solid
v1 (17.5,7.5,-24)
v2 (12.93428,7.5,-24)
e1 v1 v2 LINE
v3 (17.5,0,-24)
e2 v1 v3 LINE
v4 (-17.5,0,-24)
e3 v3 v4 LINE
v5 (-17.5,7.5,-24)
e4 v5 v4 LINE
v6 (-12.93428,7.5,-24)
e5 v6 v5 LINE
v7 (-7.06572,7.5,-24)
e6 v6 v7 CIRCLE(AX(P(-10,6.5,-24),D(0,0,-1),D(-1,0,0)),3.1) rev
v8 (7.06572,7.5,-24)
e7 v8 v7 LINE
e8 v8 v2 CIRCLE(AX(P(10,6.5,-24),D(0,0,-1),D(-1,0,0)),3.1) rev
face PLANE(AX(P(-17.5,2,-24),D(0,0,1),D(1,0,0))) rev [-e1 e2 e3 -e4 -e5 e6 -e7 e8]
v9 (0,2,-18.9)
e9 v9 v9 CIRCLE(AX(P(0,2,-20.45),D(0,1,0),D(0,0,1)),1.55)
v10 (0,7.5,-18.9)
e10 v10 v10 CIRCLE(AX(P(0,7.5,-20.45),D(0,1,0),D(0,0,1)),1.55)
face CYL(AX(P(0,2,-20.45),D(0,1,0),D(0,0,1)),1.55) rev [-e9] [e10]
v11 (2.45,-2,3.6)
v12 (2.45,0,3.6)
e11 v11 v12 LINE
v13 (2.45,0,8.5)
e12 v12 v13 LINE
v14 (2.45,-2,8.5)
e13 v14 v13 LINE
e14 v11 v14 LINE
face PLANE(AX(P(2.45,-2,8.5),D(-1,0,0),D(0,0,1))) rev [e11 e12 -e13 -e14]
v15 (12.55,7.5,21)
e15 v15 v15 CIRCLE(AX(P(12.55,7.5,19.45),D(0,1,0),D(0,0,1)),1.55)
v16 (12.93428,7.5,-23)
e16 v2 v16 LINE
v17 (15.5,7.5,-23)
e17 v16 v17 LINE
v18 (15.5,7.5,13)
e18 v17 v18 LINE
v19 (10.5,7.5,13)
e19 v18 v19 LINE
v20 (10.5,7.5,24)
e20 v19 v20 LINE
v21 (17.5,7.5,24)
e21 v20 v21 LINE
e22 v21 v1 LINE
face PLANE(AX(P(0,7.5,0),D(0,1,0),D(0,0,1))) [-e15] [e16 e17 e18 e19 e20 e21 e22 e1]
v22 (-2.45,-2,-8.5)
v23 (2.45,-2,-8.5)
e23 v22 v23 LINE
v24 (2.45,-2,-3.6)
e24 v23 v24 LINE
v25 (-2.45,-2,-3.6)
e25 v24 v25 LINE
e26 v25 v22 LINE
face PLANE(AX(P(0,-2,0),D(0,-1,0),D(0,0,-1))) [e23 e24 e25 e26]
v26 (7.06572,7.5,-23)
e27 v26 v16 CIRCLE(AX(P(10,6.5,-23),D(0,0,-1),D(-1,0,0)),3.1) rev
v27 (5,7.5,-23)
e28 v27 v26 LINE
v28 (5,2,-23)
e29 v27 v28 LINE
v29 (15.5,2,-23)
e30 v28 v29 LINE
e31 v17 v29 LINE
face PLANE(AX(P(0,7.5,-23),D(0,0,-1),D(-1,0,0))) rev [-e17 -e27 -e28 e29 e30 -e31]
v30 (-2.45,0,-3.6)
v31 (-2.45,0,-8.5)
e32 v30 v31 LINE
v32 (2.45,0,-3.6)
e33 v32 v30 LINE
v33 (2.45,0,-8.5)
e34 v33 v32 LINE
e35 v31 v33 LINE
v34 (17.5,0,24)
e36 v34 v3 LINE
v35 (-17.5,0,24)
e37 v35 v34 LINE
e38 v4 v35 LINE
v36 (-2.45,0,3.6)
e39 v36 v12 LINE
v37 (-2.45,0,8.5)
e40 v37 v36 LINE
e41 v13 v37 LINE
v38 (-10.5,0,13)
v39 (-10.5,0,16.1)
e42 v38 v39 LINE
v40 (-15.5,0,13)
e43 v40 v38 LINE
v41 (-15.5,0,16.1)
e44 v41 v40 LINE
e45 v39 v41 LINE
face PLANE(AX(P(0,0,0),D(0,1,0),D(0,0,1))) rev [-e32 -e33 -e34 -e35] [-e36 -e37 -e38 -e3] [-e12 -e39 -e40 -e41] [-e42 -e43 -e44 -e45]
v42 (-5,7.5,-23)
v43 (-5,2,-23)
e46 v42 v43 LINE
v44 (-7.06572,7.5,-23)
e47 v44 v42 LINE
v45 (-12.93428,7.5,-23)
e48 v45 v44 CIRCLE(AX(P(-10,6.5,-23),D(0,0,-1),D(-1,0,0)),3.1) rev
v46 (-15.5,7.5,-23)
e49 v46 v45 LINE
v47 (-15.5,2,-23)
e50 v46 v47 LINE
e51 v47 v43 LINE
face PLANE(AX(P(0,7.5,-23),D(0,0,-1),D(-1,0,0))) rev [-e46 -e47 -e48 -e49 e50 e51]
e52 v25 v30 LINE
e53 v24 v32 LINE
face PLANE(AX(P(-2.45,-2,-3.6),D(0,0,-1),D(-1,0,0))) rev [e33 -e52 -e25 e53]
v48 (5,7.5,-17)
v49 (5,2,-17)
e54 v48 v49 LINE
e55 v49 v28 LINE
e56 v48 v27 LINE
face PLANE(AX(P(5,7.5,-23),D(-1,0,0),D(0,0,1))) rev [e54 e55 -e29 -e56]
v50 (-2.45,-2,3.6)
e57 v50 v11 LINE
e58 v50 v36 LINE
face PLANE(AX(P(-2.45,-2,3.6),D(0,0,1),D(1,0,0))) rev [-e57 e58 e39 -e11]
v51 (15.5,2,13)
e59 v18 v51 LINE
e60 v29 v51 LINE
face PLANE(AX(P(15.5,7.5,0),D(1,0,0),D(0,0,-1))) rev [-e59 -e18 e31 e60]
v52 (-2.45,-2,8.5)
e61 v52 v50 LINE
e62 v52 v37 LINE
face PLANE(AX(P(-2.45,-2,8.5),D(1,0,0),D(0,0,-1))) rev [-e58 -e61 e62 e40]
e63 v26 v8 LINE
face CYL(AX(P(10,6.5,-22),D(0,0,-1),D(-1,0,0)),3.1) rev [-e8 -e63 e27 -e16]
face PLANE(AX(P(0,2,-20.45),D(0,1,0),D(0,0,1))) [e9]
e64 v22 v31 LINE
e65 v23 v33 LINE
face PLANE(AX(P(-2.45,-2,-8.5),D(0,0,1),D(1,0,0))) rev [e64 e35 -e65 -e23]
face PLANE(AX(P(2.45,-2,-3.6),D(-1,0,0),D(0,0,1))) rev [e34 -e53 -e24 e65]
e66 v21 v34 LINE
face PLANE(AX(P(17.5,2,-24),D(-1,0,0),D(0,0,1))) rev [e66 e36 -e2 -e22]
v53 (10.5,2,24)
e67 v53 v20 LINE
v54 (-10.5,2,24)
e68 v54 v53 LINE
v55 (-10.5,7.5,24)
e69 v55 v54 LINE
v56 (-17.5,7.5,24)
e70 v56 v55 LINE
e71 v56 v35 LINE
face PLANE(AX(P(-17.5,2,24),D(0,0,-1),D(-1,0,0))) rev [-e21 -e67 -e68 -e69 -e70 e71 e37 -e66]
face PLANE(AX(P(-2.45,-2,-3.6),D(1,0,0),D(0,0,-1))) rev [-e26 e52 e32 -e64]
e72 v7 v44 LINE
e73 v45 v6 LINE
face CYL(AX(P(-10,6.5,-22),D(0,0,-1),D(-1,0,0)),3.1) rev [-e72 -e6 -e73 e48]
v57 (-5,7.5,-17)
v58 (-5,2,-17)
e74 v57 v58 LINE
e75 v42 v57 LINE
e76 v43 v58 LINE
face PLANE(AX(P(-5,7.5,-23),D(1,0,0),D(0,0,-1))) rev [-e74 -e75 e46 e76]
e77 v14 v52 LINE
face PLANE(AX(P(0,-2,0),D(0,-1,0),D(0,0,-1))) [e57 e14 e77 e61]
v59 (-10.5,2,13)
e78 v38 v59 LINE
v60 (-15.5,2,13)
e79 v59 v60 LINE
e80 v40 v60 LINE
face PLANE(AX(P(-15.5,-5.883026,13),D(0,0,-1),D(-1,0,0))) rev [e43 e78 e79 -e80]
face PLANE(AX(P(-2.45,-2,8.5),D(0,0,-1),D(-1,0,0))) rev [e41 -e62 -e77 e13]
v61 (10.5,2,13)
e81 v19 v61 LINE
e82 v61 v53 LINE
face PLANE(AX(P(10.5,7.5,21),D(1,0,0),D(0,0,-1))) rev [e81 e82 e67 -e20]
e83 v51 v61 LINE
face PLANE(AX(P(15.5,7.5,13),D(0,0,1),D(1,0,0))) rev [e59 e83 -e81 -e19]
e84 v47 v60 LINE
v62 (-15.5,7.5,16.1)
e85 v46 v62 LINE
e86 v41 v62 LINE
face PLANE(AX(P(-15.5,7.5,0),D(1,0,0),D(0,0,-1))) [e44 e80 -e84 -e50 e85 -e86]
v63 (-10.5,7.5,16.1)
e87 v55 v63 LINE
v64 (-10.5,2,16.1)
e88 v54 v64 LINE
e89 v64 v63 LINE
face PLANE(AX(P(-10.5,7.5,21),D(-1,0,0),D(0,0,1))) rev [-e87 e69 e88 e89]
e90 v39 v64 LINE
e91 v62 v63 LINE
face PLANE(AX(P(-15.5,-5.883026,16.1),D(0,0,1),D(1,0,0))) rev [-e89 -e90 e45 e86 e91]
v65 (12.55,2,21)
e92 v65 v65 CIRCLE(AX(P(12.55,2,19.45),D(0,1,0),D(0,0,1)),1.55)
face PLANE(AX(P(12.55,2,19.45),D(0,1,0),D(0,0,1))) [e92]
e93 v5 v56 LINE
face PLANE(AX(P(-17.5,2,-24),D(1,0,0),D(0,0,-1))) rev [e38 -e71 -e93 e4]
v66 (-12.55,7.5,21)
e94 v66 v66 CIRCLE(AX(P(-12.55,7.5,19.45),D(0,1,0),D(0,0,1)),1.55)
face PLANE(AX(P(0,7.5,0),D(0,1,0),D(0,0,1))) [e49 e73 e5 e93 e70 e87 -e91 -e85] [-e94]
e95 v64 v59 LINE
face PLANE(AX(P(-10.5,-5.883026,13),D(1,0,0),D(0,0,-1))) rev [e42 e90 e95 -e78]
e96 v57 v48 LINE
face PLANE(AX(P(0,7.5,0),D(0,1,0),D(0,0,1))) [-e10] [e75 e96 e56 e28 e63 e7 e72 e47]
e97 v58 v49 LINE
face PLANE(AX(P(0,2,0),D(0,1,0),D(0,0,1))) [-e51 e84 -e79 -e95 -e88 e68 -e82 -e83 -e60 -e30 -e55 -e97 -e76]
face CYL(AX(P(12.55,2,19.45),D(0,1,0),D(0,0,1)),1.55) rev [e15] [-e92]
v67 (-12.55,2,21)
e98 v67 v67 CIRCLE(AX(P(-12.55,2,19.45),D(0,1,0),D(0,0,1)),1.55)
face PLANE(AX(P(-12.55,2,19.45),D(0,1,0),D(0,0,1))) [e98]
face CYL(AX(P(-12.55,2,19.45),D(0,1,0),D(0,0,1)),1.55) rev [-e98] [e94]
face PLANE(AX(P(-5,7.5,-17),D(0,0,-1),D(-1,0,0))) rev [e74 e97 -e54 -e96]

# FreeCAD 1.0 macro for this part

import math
import FreeCAD as App
import Part
import Sketcher

V = App.Vector

doc = App.newDocument("Part")
body = doc.addObject("PartDesign::Body", "Body")

sketch1 = body.newObject("Sketcher::SketchObject", "Sketch")
sketch1.AttachmentSupport = (doc.getObject("XZ_Plane"), [""])
sketch1.MapMode = "FlatFace"
sketch1.addGeometry([
    Part.LineSegment(V(-17.5, -24, 0), V(-17.5, 24, 0)),
    Part.LineSegment(V(-17.5, 24, 0), V(17.5, 24, 0)),
    Part.LineSegment(V(17.5, 24, 0), V(17.5, -24, 0)),
    Part.LineSegment(V(17.5, -24, 0), V(-17.5, -24, 0)),
], False)
sketch1.addConstraint([
    Sketcher.Constraint("Coincident", 0, 2, 1, 1),
    Sketcher.Constraint("Coincident", 1, 2, 2, 1),
    Sketcher.Constraint("Coincident", 2, 2, 3, 1),
    Sketcher.Constraint("Coincident", 3, 2, 0, 1),
    Sketcher.Constraint("Vertical", 0),
    Sketcher.Constraint("Horizontal", 1),
    Sketcher.Constraint("Vertical", 2),
    Sketcher.Constraint("Horizontal", 3),
    Sketcher.Constraint("Symmetric", 0, 2, 2, 2, -1, 1),
    Sketcher.Constraint("DistanceX", 1, 1, 1, 2, 35.0),
    Sketcher.Constraint("DistanceY", 0, 1, 0, 2, 48.0),
])
pad1 = body.newObject("PartDesign::Pad", "Pad")
pad1.Profile = sketch1
pad1.Length = 2
pad1.Reversed = True

sketch2 = body.newObject("Sketcher::SketchObject", "Sketch001")
sketch2.AttachmentSupport = (doc.getObject("XZ_Plane"), [""])
sketch2.MapMode = "FlatFace"
sketch2.AttachmentOffset = App.Placement(V(0, 0, -2), App.Rotation())
sketch2.addGeometry([
    Part.LineSegment(V(-17.5, -24, 0), V(-17.5, 24, 0)),
    Part.LineSegment(V(-17.5, 24, 0), V(17.5, 24, 0)),
    Part.LineSegment(V(17.5, 24, 0), V(17.5, -24, 0)),
    Part.LineSegment(V(17.5, -24, 0), V(-17.5, -24, 0)),
    Part.LineSegment(V(15.5, 21, 0), V(-15.5, 21, 0)),
    Part.LineSegment(V(-15.5, 21, 0), V(-15.5, -23, 0)),
    Part.LineSegment(V(-15.5, -23, 0), V(15.5, -23, 0)),
    Part.LineSegment(V(15.5, -23, 0), V(15.5, 21, 0)),
], False)
sketch2.addConstraint([
    Sketcher.Constraint("Coincident", 0, 2, 1, 1),
    Sketcher.Constraint("Coincident", 1, 2, 2, 1),
    Sketcher.Constraint("Coincident", 2, 2, 3, 1),
    Sketcher.Constraint("Coincident", 3, 2, 0, 1),
    Sketcher.Constraint("Coincident", 4, 2, 5, 1),
    Sketcher.Constraint("Coincident", 5, 2, 6, 1),
    Sketcher.Constraint("Coincident", 6, 2, 7, 1),
    Sketcher.Constraint("Coincident", 7, 2, 4, 1),
    Sketcher.Constraint("Vertical", 0),
    Sketcher.Constraint("Horizontal", 1),
    Sketcher.Constraint("Vertical", 2),
    Sketcher.Constraint("Horizontal", 3),
    Sketcher.Constraint("Horizontal", 4),
    Sketcher.Constraint("Vertical", 5),
    Sketcher.Constraint("Horizontal", 6),
    Sketcher.Constraint("Vertical", 7),
    Sketcher.Constraint("Symmetric", 0, 2, 2, 2, -1, 1),
    Sketcher.Constraint("DistanceX", 1, 1, 1, 2, 35.0),
    Sketcher.Constraint("DistanceX", 4, 2, 4, 1, 31.0),
    Sketcher.Constraint("DistanceY", 0, 1, 0, 2, 48.0),
    Sketcher.Constraint("DistanceY", 5, 2, 5, 1, 44.0),
    Sketcher.Constraint("DistanceY", -1, 1, 4, 2, 21.0),
    Sketcher.Constraint("DistanceX", 0, 2, 4, 2, 2.0),
])
pad2 = body.newObject("PartDesign::Pad", "Pad001")
pad2.Profile = sketch2
pad2.Length = 5.5
pad2.Reversed = True

sketch3 = body.newObject("Sketcher::SketchObject", "Sketch002")
sketch3.AttachmentSupport = (doc.getObject("XZ_Plane"), [""])
sketch3.MapMode = "FlatFace"
sketch3.AttachmentOffset = App.Placement(V(0, 0, -2), App.Rotation())
sketch3.addGeometry([
    Part.LineSegment(V(-5, -23, 0), V(-5, -17, 0)),
    Part.LineSegment(V(-5, -17, 0), V(5, -17, 0)),
    Part.LineSegment(V(5, -17, 0), V(5, -23, 0)),
    Part.LineSegment(V(5, -23, 0), V(-5, -23, 0)),
    Part.LineSegment(V(-15.5, 13, 0), V(-15.5, 21, 0)),
    Part.LineSegment(V(-15.5, 21, 0), V(-10.5, 21, 0)),
    Part.LineSegment(V(-10.5, 21, 0), V(-10.5, 13, 0)),
    Part.LineSegment(V(-10.5, 13, 0), V(-15.5, 13, 0)),
    Part.LineSegment(V(10.5, 13, 0), V(10.5, 21, 0)),
    Part.LineSegment(V(10.5, 21, 0), V(15.5, 21, 0)),
    Part.LineSegment(V(15.5, 21, 0), V(15.5, 13, 0)),
    Part.LineSegment(V(15.5, 13, 0), V(10.5, 13, 0)),
], False)
sketch3.addConstraint([
    Sketcher.Constraint("Coincident", 0, 2, 1, 1),
    Sketcher.Constraint("Coincident", 1, 2, 2, 1),
    Sketcher.Constraint("Coincident", 2, 2, 3, 1),
    Sketcher.Constraint("Coincident", 3, 2, 0, 1),
    Sketcher.Constraint("Coincident", 4, 2, 5, 1),
    Sketcher.Constraint("Coincident", 5, 2, 6, 1),
    Sketcher.Constraint("Coincident", 6, 2, 7, 1),
    Sketcher.Constraint("Coincident", 7, 2, 4, 1),
    Sketcher.Constraint("Coincident", 8, 2, 9, 1),
    Sketcher.Constraint("Coincident", 9, 2, 10, 1),
    Sketcher.Constraint("Coincident", 10, 2, 11, 1),
    Sketcher.Constraint("Coincident", 11, 2, 8, 1),
    Sketcher.Constraint("Vertical", 0),
    Sketcher.Constraint("Horizontal", 1),
    Sketcher.Constraint("Vertical", 2),
    Sketcher.Constraint("Horizontal", 3),
    Sketcher.Constraint("Vertical", 4),
    Sketcher.Constraint("Horizontal", 5),
    Sketcher.Constraint("Vertical", 6),
    Sketcher.Constraint("Horizontal", 7),
    Sketcher.Constraint("Vertical", 8),
    Sketcher.Constraint("Horizontal", 9),
    Sketcher.Constraint("Vertical", 10),
    Sketcher.Constraint("Horizontal", 11),
    Sketcher.Constraint("Symmetric", 5, 2, 8, 2, -2),
    Sketcher.Constraint("Symmetric", 7, 2, 10, 2, -2),
    Sketcher.Constraint("DistanceX", 1, 1, 1, 2, 10.0),
    Sketcher.Constraint("DistanceX", 5, 1, 5, 2, 5.0),
    Sketcher.Constraint("DistanceY", 0, 1, 0, 2, 6.0),
    Sketcher.Constraint("DistanceY", 4, 1, 4, 2, 8.0),
    Sketcher.Constraint("DistanceX", 0, 2, -1, 1, 5.0),
    Sketcher.Constraint("DistanceY", 0, 2, -1, 1, 17.0),
    Sketcher.Constraint("DistanceY", -1, 1, 4, 2, 21.0),
    Sketcher.Constraint("DistanceX", 5, 2, 8, 2, 21.0),
])
pad3 = body.newObject("PartDesign::Pad", "Pad002")
pad3.Profile = sketch3
pad3.Length = 5.5
pad3.Reversed = True

sketch4 = body.newObject("Sketcher::SketchObject", "Sketch003")
sketch4.AttachmentSupport = (doc.getObject("XY_Plane"), [""])
sketch4.MapMode = "FlatFace"
sketch4.AttachmentOffset = App.Placement(V(0, 0, 24), App.Rotation())
sketch4.addGeometry([
    Part.LineSegment(V(-10.5, 7.5, 0), V(-10.5, 2, 0)),
    Part.LineSegment(V(-10.5, 2, 0), V(10.5, 2, 0)),
    Part.LineSegment(V(10.5, 2, 0), V(10.5, 7.5, 0)),
    Part.LineSegment(V(10.5, 7.5, 0), V(-10.5, 7.5, 0)),
], False)
sketch4.addConstraint([
    Sketcher.Constraint("Coincident", 0, 2, 1, 1),
    Sketcher.Constraint("Coincident", 1, 2, 2, 1),
    Sketcher.Constraint("Coincident", 2, 2, 3, 1),
    Sketcher.Constraint("Coincident", 3, 2, 0, 1),
    Sketcher.Constraint("Vertical", 0),
    Sketcher.Constraint("Horizontal", 1),
    Sketcher.Constraint("Vertical", 2),
    Sketcher.Constraint("Horizontal", 3),
    Sketcher.Constraint("DistanceX", 1, 1, 1, 2, 21.0),
    Sketcher.Constraint("DistanceY", 0, 2, 0, 1, 5.5),
    Sketcher.Constraint("DistanceY", -1, 1, 0, 2, 2.0),
    Sketcher.Constraint("DistanceX", 0, 2, -1, 1, 10.5),
])
pocket1 = body.newObject("PartDesign::Pocket", "Pocket")
pocket1.Profile = sketch4
pocket1.Length = 3

sketch5 = body.newObject("Sketcher::SketchObject", "Sketch004")
sketch5.AttachmentSupport = (doc.getObject("XZ_Plane"), [""])
sketch5.MapMode = "FlatFace"
sketch5.addGeometry([
    Part.LineSegment(V(-2.45, 8.5, 0), V(-2.45, 3.6, 0)),
    Part.LineSegment(V(-2.45, 3.6, 0), V(2.45, 3.6, 0)),
    Part.LineSegment(V(2.45, 3.6, 0), V(2.45, 8.5, 0)),
    Part.LineSegment(V(2.45, 8.5, 0), V(-2.45, 8.5, 0)),
    Part.LineSegment(V(-2.45, -3.6, 0), V(-2.45, -8.5, 0)),
    Part.LineSegment(V(-2.45, -8.5, 0), V(2.45, -8.5, 0)),
    Part.LineSegment(V(2.45, -8.5, 0), V(2.45, -3.6, 0)),
    Part.LineSegment(V(2.45, -3.6, 0), V(-2.45, -3.6, 0)),
], False)
sketch5.addConstraint([
    Sketcher.Constraint("Coincident", 0, 2, 1, 1),
    Sketcher.Constraint("Coincident", 1, 2, 2, 1),
    Sketcher.Constraint("Coincident", 2, 2, 3, 1),
    Sketcher.Constraint("Coincident", 3, 2, 0, 1),
    Sketcher.Constraint("Coincident", 4, 2, 5, 1),
    Sketcher.Constraint("Coincident", 5, 2, 6, 1),
    Sketcher.Constraint("Coincident", 6, 2, 7, 1),
    Sketcher.Constraint("Coincident", 7, 2, 4, 1),
    Sketcher.Constraint("Vertical", 0),
    Sketcher.Constraint("Horizontal", 1),
    Sketcher.Constraint("Vertical", 2),
    Sketcher.Constraint("Horizontal", 3),
    Sketcher.Constraint("Vertical", 4),
    Sketcher.Constraint("Horizontal", 5),
    Sketcher.Constraint("Vertical", 6),
    Sketcher.Constraint("Horizontal", 7),
    Sketcher.Constraint("Symmetric", 2, 2, 4, 2, -1, 1),
    Sketcher.Constraint("Symmetric", 0, 2, 6, 2, -1, 1),
    Sketcher.Constraint("Vertical", 3, 2, 4, 2),
    Sketcher.Constraint("Equal", 7, 0),
    Sketcher.Constraint("DistanceX", 1, 1, 1, 2, 4.9),
    Sketcher.Constraint("DistanceY", 4, 2, 3, 2, 17.0),
])
pad4 = body.newObject("PartDesign::Pad", "Pad003")
pad4.Profile = sketch5
pad4.Length = 2

sketch6 = body.newObject("Sketcher::SketchObject", "Sketch005")
sketch6.AttachmentSupport = (doc.getObject("XY_Plane"), [""])
sketch6.MapMode = "FlatFace"
sketch6.AttachmentOffset = App.Placement(V(0, 0, -24), App.Rotation())
sketch6.addGeometry([
    Part.ArcOfCircle(Part.Circle(V(10, 6.5, 0), V(0, 0, 1), 3.1), math.radians(161.180937), math.radians(378.819063)),
    Part.LineSegment(V(7.06572, 7.5, 0), V(12.93428, 7.5, 0)),
    Part.LineSegment(V(-12.93428, 7.5, 0), V(-7.06572, 7.5, 0)),
    Part.ArcOfCircle(Part.Circle(V(-10, 6.5, 0), V(0, 0, 1), 3.1), math.radians(161.180937), math.radians(378.819063)),
], False)
sketch6.addConstraint([
    Sketcher.Constraint("Coincident", 0, 1, 1, 1),
    Sketcher.Constraint("Coincident", 1, 2, 0, 2),
    Sketcher.Constraint("Coincident", 2, 1, 3, 1),
    Sketcher.Constraint("Coincident", 3, 2, 2, 2),
    Sketcher.Constraint("Horizontal", 1),
    Sketcher.Constraint("Horizontal", 2),
    Sketcher.Constraint("Equal", 0, 3),
    Sketcher.Constraint("Symmetric", 0, 3, 3, 3, -2),
    Sketcher.Constraint("Horizontal", 1, 2, 2, 1),
    Sketcher.Constraint("Radius", 0, 3.1),
    Sketcher.Constraint("DistanceX", -1, 1, 0, 3, 10.0),
    Sketcher.Constraint("DistanceY", 0, 3, 0, 1, 1.0),
    Sketcher.Constraint("DistanceY", -1, 1, 0, 3, 6.5),
])
pocket2 = body.newObject("PartDesign::Pocket", "Pocket001")
pocket2.Profile = sketch6
pocket2.Length = 2
pocket2.Reversed = True

sketch7 = body.newObject("Sketcher::SketchObject", "Sketch006")
sketch7.AttachmentSupport = (doc.getObject("XZ_Plane"), [""])
sketch7.MapMode = "FlatFace"
sketch7.addGeometry([
    Part.LineSegment(V(-15.5, 13, 0), V(-15.5, 16.1, 0)),
    Part.LineSegment(V(-15.5, 16.1, 0), V(-10.5, 16.1, 0)),
    Part.LineSegment(V(-10.5, 16.1, 0), V(-10.5, 13, 0)),
    Part.LineSegment(V(-10.5, 13, 0), V(-15.5, 13, 0)),
], False)
sketch7.addConstraint([
    Sketcher.Constraint("Coincident", 0, 2, 1, 1),
    Sketcher.Constraint("Coincident", 1, 2, 2, 1),
    Sketcher.Constraint("Coincident", 2, 2, 3, 1),
    Sketcher.Constraint("Coincident", 3, 2, 0, 1),
    Sketcher.Constraint("Vertical", 0),
    Sketcher.Constraint("Horizontal", 1),
    Sketcher.Constraint("Vertical", 2),
    Sketcher.Constraint("Horizontal", 3),
    Sketcher.Constraint("DistanceX", 1, 1, 1, 2, 5.0),
    Sketcher.Constraint("DistanceY", 0, 1, 0, 2, 3.1),
    Sketcher.Constraint("DistanceY", -1, 1, 2, 2, 13.0),
    Sketcher.Constraint("DistanceX", 0, 2, -1, 1, 15.5),
])
pocket3 = body.newObject("PartDesign::Pocket", "Pocket002")
pocket3.Profile = sketch7
pocket3.Length = 7.5

sketch8 = body.newObject("Sketcher::SketchObject", "Sketch007")
sketch8.AttachmentSupport = (doc.getObject("XZ_Plane"), [""])
sketch8.MapMode = "FlatFace"
sketch8.AttachmentOffset = App.Placement(V(0, 0, -7.5), App.Rotation())
sketch8.addGeometry([
    Part.Circle(V(-12.55, 19.45, 0), V(0, 0, 1), 1.55),
    Part.Circle(V(12.55, 19.45, 0), V(0, 0, 1), 1.55),
    Part.Circle(V(0, -20.45, 0), V(0, 0, 1), 1.55),
], False)
sketch8.addConstraint([
    Sketcher.Constraint("Equal", 0, 1),
    Sketcher.Constraint("Equal", 1, 2),
    Sketcher.Constraint("Symmetric", 0, 3, 1, 3, -2),
    Sketcher.Constraint("PointOnObject", 2, 3, -2),
    Sketcher.Constraint("Diameter", 0, 3.1),
    Sketcher.Constraint("DistanceX", 0, 3, 1, 3, 25.1),
    Sketcher.Constraint("DistanceY", 2, 3, 0, 3, 39.9),
    Sketcher.Constraint("DistanceY", -1, 1, 0, 3, 19.45),
])
pocket4 = body.newObject("PartDesign::Pocket", "Pocket003")
pocket4.Profile = sketch8
pocket4.Length = 5.5
pocket4.Reversed = True

doc.recompute()
